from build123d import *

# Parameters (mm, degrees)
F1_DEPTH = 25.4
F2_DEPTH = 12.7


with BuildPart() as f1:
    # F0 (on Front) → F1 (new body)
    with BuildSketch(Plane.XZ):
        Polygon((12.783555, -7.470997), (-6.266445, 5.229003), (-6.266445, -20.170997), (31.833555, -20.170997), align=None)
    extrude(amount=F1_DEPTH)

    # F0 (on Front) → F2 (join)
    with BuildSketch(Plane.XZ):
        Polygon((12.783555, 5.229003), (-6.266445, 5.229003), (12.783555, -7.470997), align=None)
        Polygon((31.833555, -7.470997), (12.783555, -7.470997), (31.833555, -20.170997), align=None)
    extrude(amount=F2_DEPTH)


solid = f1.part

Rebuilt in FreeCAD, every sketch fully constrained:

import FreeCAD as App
import Part
import Sketcher
from FreeCAD import Vector
Q = App.Units.Quantity

doc = App.newDocument("Part")
body = doc.addObject("PartDesign::Body", "Body")

# Sketch on XZ plane
sketch1 = body.newObject("Sketcher::SketchObject", "Sketch")
sketch1.AttachmentSupport = (doc.getObject("XZ_Plane"), [""])
sketch1.MapMode = "FlatFace"
sketch1.addGeometry(Part.LineSegment(Vector(-6, 5, 0), Vector(-6, -20, 0)), False)
sketch1.addGeometry(Part.LineSegment(Vector(-6, -20, 0), Vector(32, -20, 0)), False)
sketch1.addGeometry(Part.LineSegment(Vector(32, -20, 0), Vector(-6, 5, 0)), False)
sketch1.addConstraint(Sketcher.Constraint("Coincident", 0, 2, 1, 1))
sketch1.addConstraint(Sketcher.Constraint("Coincident", 1, 2, 2, 1))
sketch1.addConstraint(Sketcher.Constraint("Coincident", 2, 2, 0, 1))
sketch1.addConstraint(Sketcher.Constraint("Vertical", 0))
sketch1.addConstraint(Sketcher.Constraint("Horizontal", 1))
sketch1.addConstraint(Sketcher.Constraint("DistanceY", 0, 2, 0, 1, Q("1 in")))
sketch1.addConstraint(Sketcher.Constraint("DistanceX", 1, 1, 1, 2, Q("1.5 in")))
sketch1.addConstraint(Sketcher.Constraint("DistanceX", 0, 2, -1, 1, 6.266445))
sketch1.addConstraint(Sketcher.Constraint("DistanceY", 0, 2, -1, 1, 20.170997))
pad1 = body.newObject("PartDesign::Pad", "Pad")
pad1.Profile = sketch1
pad1.Length = Q("1 in")

# Sketch on XZ plane
sketch2 = body.newObject("Sketcher::SketchObject", "Sketch001")
sketch2.AttachmentSupport = (doc.getObject("XZ_Plane"), [""])
sketch2.MapMode = "FlatFace"
sketch2.addGeometry(Part.LineSegment(Vector(13, 5, 0), Vector(-6, 5, 0)), False)
sketch2.addGeometry(Part.LineSegment(Vector(-6, 5, 0), Vector(13, -7, 0)), False)
sketch2.addGeometry(Part.LineSegment(Vector(13, -7, 0), Vector(13, 5, 0)), False)
sketch2.addGeometry(Part.LineSegment(Vector(32, -7, 0), Vector(13, -7, 0)), False)
sketch2.addGeometry(Part.LineSegment(Vector(13, -7, 0), Vector(32, -20, 0)), False)
sketch2.addGeometry(Part.LineSegment(Vector(32, -20, 0), Vector(32, -7, 0)), False)
sketch2.addConstraint(Sketcher.Constraint("Coincident", 0, 2, 1, 1))
sketch2.addConstraint(Sketcher.Constraint("Coincident", 1, 2, 2, 1))
sketch2.addConstraint(Sketcher.Constraint("Coincident", 2, 2, 0, 1))
sketch2.addConstraint(Sketcher.Constraint("Coincident", 3, 2, 4, 1))
sketch2.addConstraint(Sketcher.Constraint("Coincident", 4, 2, 5, 1))
sketch2.addConstraint(Sketcher.Constraint("Coincident", 5, 2, 3, 1))
sketch2.addConstraint(Sketcher.Constraint("Horizontal", 0))
sketch2.addConstraint(Sketcher.Constraint("Vertical", 2))
sketch2.addConstraint(Sketcher.Constraint("Horizontal", 3))
sketch2.addConstraint(Sketcher.Constraint("Vertical", 5))
sketch2.addConstraint(Sketcher.Constraint("Coincident", 3, 2, 1, 2))
sketch2.addConstraint(Sketcher.Constraint("Parallel", 1, 4))
sketch2.addConstraint(Sketcher.Constraint("Equal", 0, 3))
sketch2.addConstraint(Sketcher.Constraint("DistanceY", 2, 1, 2, 2, Q("0.5 in")))
sketch2.addConstraint(Sketcher.Constraint("DistanceX", 0, 2, 0, 1, Q("0.75 in")))
sketch2.addConstraint(Sketcher.Constraint("DistanceX", 0, 2, -1, 1, 6.266445))
sketch2.addConstraint(Sketcher.Constraint("DistanceY", -1, 1, 0, 2, 5.229003))
pad2 = body.newObject("PartDesign::Pad", "Pad001")
pad2.Profile = sketch2
pad2.Length = Q("0.5 in")

doc.recompute()
